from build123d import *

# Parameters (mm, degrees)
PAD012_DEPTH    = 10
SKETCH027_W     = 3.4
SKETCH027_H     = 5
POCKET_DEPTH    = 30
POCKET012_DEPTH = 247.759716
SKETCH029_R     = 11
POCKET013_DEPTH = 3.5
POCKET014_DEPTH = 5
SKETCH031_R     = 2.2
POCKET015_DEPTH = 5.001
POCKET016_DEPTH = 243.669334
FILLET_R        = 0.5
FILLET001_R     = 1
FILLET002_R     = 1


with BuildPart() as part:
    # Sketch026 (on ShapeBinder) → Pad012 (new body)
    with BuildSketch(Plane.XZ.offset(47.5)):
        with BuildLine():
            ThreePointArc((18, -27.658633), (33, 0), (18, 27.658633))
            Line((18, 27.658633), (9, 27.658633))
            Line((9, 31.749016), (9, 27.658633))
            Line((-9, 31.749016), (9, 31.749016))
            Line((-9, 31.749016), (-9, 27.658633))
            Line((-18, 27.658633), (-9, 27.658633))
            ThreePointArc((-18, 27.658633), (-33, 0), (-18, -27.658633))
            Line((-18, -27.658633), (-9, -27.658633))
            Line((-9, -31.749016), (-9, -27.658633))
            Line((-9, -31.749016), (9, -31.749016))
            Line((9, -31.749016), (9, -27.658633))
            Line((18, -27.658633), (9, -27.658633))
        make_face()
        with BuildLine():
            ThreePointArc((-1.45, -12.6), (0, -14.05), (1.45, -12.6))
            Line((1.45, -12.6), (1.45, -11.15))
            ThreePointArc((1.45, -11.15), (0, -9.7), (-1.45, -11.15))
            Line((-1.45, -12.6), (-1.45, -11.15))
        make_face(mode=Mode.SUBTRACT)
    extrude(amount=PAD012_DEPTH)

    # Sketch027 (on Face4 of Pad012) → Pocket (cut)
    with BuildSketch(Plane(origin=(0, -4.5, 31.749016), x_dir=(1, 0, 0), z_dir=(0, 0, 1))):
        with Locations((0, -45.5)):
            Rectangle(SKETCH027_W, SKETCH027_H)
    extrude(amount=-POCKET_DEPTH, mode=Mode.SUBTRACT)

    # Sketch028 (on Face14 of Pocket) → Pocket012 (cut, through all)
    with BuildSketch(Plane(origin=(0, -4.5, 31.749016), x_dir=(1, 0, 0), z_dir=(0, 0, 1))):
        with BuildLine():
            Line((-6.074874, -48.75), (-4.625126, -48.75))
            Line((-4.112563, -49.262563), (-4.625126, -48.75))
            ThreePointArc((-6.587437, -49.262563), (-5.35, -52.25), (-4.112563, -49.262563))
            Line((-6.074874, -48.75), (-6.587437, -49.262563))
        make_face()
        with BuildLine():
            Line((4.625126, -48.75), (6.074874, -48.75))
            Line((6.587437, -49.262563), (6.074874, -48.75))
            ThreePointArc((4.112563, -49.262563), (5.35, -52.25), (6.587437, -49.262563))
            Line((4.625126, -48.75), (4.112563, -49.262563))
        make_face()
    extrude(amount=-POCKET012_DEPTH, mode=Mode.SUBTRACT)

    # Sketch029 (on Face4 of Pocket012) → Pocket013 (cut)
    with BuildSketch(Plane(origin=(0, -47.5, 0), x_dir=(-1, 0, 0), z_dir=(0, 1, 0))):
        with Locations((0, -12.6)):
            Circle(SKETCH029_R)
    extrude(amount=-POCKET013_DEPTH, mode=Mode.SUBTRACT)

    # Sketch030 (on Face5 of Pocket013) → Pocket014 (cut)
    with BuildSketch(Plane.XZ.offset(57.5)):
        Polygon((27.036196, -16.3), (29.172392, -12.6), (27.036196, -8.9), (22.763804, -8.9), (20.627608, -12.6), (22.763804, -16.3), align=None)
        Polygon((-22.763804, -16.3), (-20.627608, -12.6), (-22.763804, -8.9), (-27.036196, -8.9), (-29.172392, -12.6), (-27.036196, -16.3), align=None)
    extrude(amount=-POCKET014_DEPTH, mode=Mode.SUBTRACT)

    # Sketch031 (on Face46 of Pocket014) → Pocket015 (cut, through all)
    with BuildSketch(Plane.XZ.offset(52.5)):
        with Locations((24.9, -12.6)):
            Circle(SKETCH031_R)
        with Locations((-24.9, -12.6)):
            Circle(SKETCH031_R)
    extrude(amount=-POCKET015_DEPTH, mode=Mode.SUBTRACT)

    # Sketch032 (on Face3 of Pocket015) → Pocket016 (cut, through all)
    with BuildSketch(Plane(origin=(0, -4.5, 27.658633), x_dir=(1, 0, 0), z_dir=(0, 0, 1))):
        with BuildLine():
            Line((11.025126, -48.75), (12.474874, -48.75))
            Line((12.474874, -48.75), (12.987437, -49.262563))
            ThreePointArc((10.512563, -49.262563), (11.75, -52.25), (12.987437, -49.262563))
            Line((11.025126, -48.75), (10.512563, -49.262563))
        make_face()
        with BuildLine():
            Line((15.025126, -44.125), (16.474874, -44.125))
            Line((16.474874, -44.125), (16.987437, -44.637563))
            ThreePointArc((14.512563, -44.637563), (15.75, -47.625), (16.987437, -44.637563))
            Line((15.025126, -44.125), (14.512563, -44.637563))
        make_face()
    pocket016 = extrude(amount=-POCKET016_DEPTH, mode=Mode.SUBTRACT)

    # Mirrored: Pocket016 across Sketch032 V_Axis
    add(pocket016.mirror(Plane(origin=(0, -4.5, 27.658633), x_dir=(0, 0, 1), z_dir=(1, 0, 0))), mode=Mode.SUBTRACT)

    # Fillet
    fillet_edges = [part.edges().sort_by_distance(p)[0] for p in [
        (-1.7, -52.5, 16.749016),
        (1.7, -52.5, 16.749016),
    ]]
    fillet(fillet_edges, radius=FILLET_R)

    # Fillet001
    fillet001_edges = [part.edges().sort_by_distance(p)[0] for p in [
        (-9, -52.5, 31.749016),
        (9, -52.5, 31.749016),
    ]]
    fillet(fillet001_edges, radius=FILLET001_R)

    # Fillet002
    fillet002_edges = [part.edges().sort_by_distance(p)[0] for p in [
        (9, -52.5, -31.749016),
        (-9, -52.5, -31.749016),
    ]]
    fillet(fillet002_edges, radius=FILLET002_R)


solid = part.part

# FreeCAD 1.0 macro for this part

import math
import FreeCAD as App
import Part
import Sketcher
Q = App.Units.Quantity


def edges_at(feature, points):
    """Names of the edges that pass closest to the given points."""
    edges = feature.Shape.Edges
    near = lambda p: min(range(len(edges)), key=lambda i: edges[i].distToShape(Part.Vertex(*p))[0])
    return sorted({f"Edge{near(p) + 1}" for p in points})

doc = App.newDocument("Part")
body = doc.addObject("PartDesign::Body", "Body")

# Sketch on XZ plane
sketch1 = body.newObject("Sketcher::SketchObject", "Sketch")
sketch1.AttachmentSupport = (doc.getObject("XZ_Plane"), [""])
sketch1.MapMode = "FlatFace"
sketch1.AttachmentOffset = App.Placement(App.Vector(0, 0, 47.5), App.Rotation())
sketch1.addGeometry(Part.ArcOfCircle(Part.Circle(App.Vector(0.000001, 0, 0), App.Vector(0, 0, 1), 32.999999), math.radians(-56.944269), math.radians(56.944269)), False)
sketch1.addGeometry(Part.LineSegment(App.Vector(18, 27.658633, 0), App.Vector(9, 27.658633, 0)), False)
sketch1.addGeometry(Part.LineSegment(App.Vector(9, 27.658633, 0), App.Vector(9, 31.749016, 0)), False)
sketch1.addGeometry(Part.LineSegment(App.Vector(9, 31.749016, 0), App.Vector(-9, 31.749016, 0)), False)
sketch1.addGeometry(Part.LineSegment(App.Vector(-9, 31.749016, 0), App.Vector(-9, 27.658633, 0)), False)
sketch1.addGeometry(Part.LineSegment(App.Vector(-9, 27.658633, 0), App.Vector(-18, 27.658633, 0)), False)
sketch1.addGeometry(Part.ArcOfCircle(Part.Circle(App.Vector(-0.000001, 0, 0), App.Vector(0, 0, 1), 32.999999), math.radians(123.055731), math.radians(236.944269)), False)
sketch1.addGeometry(Part.LineSegment(App.Vector(-18, -27.658633, 0), App.Vector(-9, -27.658633, 0)), False)
sketch1.addGeometry(Part.LineSegment(App.Vector(-9, -27.658633, 0), App.Vector(-9, -31.749016, 0)), False)
sketch1.addGeometry(Part.LineSegment(App.Vector(-9, -31.749016, 0), App.Vector(9, -31.749016, 0)), False)
sketch1.addGeometry(Part.LineSegment(App.Vector(9, -31.749016, 0), App.Vector(9, -27.658633, 0)), False)
sketch1.addGeometry(Part.LineSegment(App.Vector(9, -27.658633, 0), App.Vector(18, -27.658633, 0)), False)
sketch1.addGeometry(Part.ArcOfCircle(Part.Circle(App.Vector(0, -12.6, 0), App.Vector(0, 0, 1), 1.45), math.radians(180), math.radians(360)), False)
sketch1.addGeometry(Part.LineSegment(App.Vector(-1.45, -12.6, 0), App.Vector(-1.45, -11.15, 0)), False)
sketch1.addGeometry(Part.ArcOfCircle(Part.Circle(App.Vector(0, -11.15, 0), App.Vector(0, 0, 1), 1.45), math.radians(0), math.radians(180)), False)
sketch1.addGeometry(Part.LineSegment(App.Vector(1.45, -11.15, 0), App.Vector(1.45, -12.6, 0)), False)
sketch1.addConstraint(Sketcher.Constraint("Coincident", 0, 2, 1, 1))
sketch1.addConstraint(Sketcher.Constraint("Coincident", 1, 2, 2, 1))
sketch1.addConstraint(Sketcher.Constraint("Coincident", 2, 2, 3, 1))
sketch1.addConstraint(Sketcher.Constraint("Coincident", 3, 2, 4, 1))
sketch1.addConstraint(Sketcher.Constraint("Coincident", 4, 2, 5, 1))
sketch1.addConstraint(Sketcher.Constraint("Coincident", 5, 2, 6, 1))
sketch1.addConstraint(Sketcher.Constraint("Coincident", 6, 2, 7, 1))
sketch1.addConstraint(Sketcher.Constraint("Coincident", 7, 2, 8, 1))
sketch1.addConstraint(Sketcher.Constraint("Coincident", 8, 2, 9, 1))
sketch1.addConstraint(Sketcher.Constraint("Coincident", 9, 2, 10, 1))
sketch1.addConstraint(Sketcher.Constraint("Coincident", 10, 2, 11, 1))
sketch1.addConstraint(Sketcher.Constraint("Coincident", 11, 2, 0, 1))
sketch1.addConstraint(Sketcher.Constraint("Tangent", 12, 1, 13, 1))
sketch1.addConstraint(Sketcher.Constraint("Tangent", 13, 2, 14, 2))
sketch1.addConstraint(Sketcher.Constraint("Tangent", 14, 1, 15, 1))
sketch1.addConstraint(Sketcher.Constraint("Tangent", 15, 2, 12, 2))
sketch1.addConstraint(Sketcher.Constraint("Horizontal", 1))
sketch1.addConstraint(Sketcher.Constraint("Vertical", 2))
sketch1.addConstraint(Sketcher.Constraint("Horizontal", 3))
sketch1.addConstraint(Sketcher.Constraint("Vertical", 4))
sketch1.addConstraint(Sketcher.Constraint("Horizontal", 5))
sketch1.addConstraint(Sketcher.Constraint("Horizontal", 7))
sketch1.addConstraint(Sketcher.Constraint("Vertical", 8))
sketch1.addConstraint(Sketcher.Constraint("Horizontal", 9))
sketch1.addConstraint(Sketcher.Constraint("Vertical", 10))
sketch1.addConstraint(Sketcher.Constraint("Horizontal", 11))
sketch1.addConstraint(Sketcher.Constraint("Vertical", 13))
sketch1.addConstraint(Sketcher.Constraint("Vertical", 15))
sketch1.addConstraint(Sketcher.Constraint("Coincident", 0, 3, -1, 1))
sketch1.addConstraint(Sketcher.Constraint("Coincident", 6, 3, -1, 1))
sketch1.addConstraint(Sketcher.Constraint("Equal", 0, 6))
sketch1.addConstraint(Sketcher.Constraint("Symmetric", 1, 2, 7, 2, -1, 1))
sketch1.addConstraint(Sketcher.Constraint("Symmetric", 3, 2, 9, 2, -1, 1))
sketch1.addConstraint(Sketcher.Constraint("Symmetric", 1, 2, 4, 2, -2))
sketch1.addConstraint(Sketcher.Constraint("PointOnObject", 12, 3, -2))
sketch1.addConstraint(Sketcher.Constraint("Horizontal", 7, 2, 10, 2))
sketch1.addConstraint(Sketcher.Constraint("Radius", 0, Q("32.999999 mm")))
sketch1.addConstraint(Sketcher.Constraint("DistanceX", 1, 2, 1, 1, Q("9 mm")))
sketch1.addConstraint(Sketcher.Constraint("DistanceX", 3, 2, 3, 1, Q("18 mm")))
sketch1.addConstraint(Sketcher.Constraint("Radius", 12, Q("1.45 mm")))
sketch1.addConstraint(Sketcher.Constraint("DistanceY", 13, 1, 13, 2, Q("1.45 mm")))
sketch1.addConstraint(Sketcher.Constraint("DistanceY", 12, 3, -1, 1, Q("12.6 mm")))
sketch1.addConstraint(Sketcher.Constraint("DistanceY", 2, 1, 2, 2, Q("4.090383 mm")))
pad1 = body.newObject("PartDesign::Pad", "Pad")
pad1.Profile = sketch1
pad1.Length = 10

# Sketch on XY plane
sketch2 = body.newObject("Sketcher::SketchObject", "Sketch001")
sketch2.AttachmentSupport = (doc.getObject("XY_Plane"), [""])
sketch2.MapMode = "FlatFace"
sketch2.AttachmentOffset = App.Placement(App.Vector(0, 0, 31.749016), App.Rotation())
sketch2.addGeometry(Part.LineSegment(App.Vector(-1.7, -47.5, 0), App.Vector(-1.7, -52.5, 0)), False)
sketch2.addGeometry(Part.LineSegment(App.Vector(-1.7, -52.5, 0), App.Vector(1.7, -52.5, 0)), False)
sketch2.addGeometry(Part.LineSegment(App.Vector(1.7, -52.5, 0), App.Vector(1.7, -47.5, 0)), False)
sketch2.addGeometry(Part.LineSegment(App.Vector(1.7, -47.5, 0), App.Vector(-1.7, -47.5, 0)), False)
sketch2.addConstraint(Sketcher.Constraint("Coincident", 0, 2, 1, 1))
sketch2.addConstraint(Sketcher.Constraint("Coincident", 1, 2, 2, 1))
sketch2.addConstraint(Sketcher.Constraint("Coincident", 2, 2, 3, 1))
sketch2.addConstraint(Sketcher.Constraint("Coincident", 3, 2, 0, 1))
sketch2.addConstraint(Sketcher.Constraint("Vertical", 0))
sketch2.addConstraint(Sketcher.Constraint("Horizontal", 1))
sketch2.addConstraint(Sketcher.Constraint("Vertical", 2))
sketch2.addConstraint(Sketcher.Constraint("Horizontal", 3))
sketch2.addConstraint(Sketcher.Constraint("DistanceY", 0, 2, 0, 1, Q("5 mm")))
sketch2.addConstraint(Sketcher.Constraint("DistanceX", 1, 1, 1, 2, Q("3.4 mm")))
sketch2.addConstraint(Sketcher.Constraint("DistanceX", 0, 2, -1, 1, Q("1.7 mm")))
sketch2.addConstraint(Sketcher.Constraint("DistanceY", 0, 2, -1, 1, Q("52.5 mm")))
pocket1 = body.newObject("PartDesign::Pocket", "Pocket")
pocket1.Profile = sketch2
pocket1.Length = 30

# Sketch on XY plane
sketch3 = body.newObject("Sketcher::SketchObject", "Sketch002")
sketch3.AttachmentSupport = (doc.getObject("XY_Plane"), [""])
sketch3.MapMode = "FlatFace"
sketch3.AttachmentOffset = App.Placement(App.Vector(0, 0, 31.749016), App.Rotation())
sketch3.addGeometry(Part.LineSegment(App.Vector(-4.625126, -53.25, 0), App.Vector(-6.074874, -53.25, 0)), False)
sketch3.addGeometry(Part.LineSegment(App.Vector(-6.074874, -53.25, 0), App.Vector(-6.587437, -53.762563, 0)), False)
sketch3.addGeometry(Part.ArcOfCircle(Part.Circle(App.Vector(-5.35, -55, 0), App.Vector(0, 0, 1), 1.75), math.radians(135.000003), math.radians(404.999997)), False)
sketch3.addGeometry(Part.LineSegment(App.Vector(-4.112563, -53.762563, 0), App.Vector(-4.625126, -53.25, 0)), False)
sketch3.addGeometry(Part.LineSegment(App.Vector(6.074874, -53.25, 0), App.Vector(4.625126, -53.25, 0)), False)
sketch3.addGeometry(Part.LineSegment(App.Vector(4.625126, -53.25, 0), App.Vector(4.112563, -53.762563, 0)), False)
sketch3.addGeometry(Part.ArcOfCircle(Part.Circle(App.Vector(5.35, -55, 0), App.Vector(0, 0, 1), 1.75), math.radians(135.000003), math.radians(404.999997)), False)
sketch3.addGeometry(Part.LineSegment(App.Vector(6.587437, -53.762563, 0), App.Vector(6.074874, -53.25, 0)), False)
sketch3.addConstraint(Sketcher.Constraint("Coincident", 0, 2, 1, 1))
sketch3.addConstraint(Sketcher.Constraint("Tangent", 1, 2, 2, 1))
sketch3.addConstraint(Sketcher.Constraint("Tangent", 2, 2, 3, 1))
sketch3.addConstraint(Sketcher.Constraint("Coincident", 3, 2, 0, 1))
sketch3.addConstraint(Sketcher.Constraint("Coincident", 4, 2, 5, 1))
sketch3.addConstraint(Sketcher.Constraint("Tangent", 5, 2, 6, 1))
sketch3.addConstraint(Sketcher.Constraint("Tangent", 6, 2, 7, 1))
sketch3.addConstraint(Sketcher.Constraint("Coincident", 7, 2, 4, 1))
sketch3.addConstraint(Sketcher.Constraint("Horizontal", 0))
sketch3.addConstraint(Sketcher.Constraint("Horizontal", 4))
sketch3.addConstraint(Sketcher.Constraint("Equal", 2, 6))
sketch3.addConstraint(Sketcher.Constraint("Symmetric", 2, 3, 6, 3, -2))
sketch3.addConstraint(Sketcher.Constraint("Symmetric", 3, 2, 4, 2, -2))
sketch3.addConstraint(Sketcher.Constraint("Perpendicular", 1, 3))
sketch3.addConstraint(Sketcher.Constraint("Perpendicular", 3, 5))
sketch3.addConstraint(Sketcher.Constraint("Perpendicular", 5, 7))
sketch3.addConstraint(Sketcher.Constraint("Radius", 2, Q("1.75 mm")))
sketch3.addConstraint(Sketcher.Constraint("DistanceY", 2, 3, -1, 1, Q("55 mm")))
sketch3.addConstraint(Sketcher.Constraint("DistanceX", 2, 3, 6, 3, Q("10.7 mm")))
sketch3.addConstraint(Sketcher.Constraint("DistanceY", 0, 2, -1, 1, Q("53.25 mm")))
pocket2 = body.newObject("PartDesign::Pocket", "Pocket001")
pocket2.Profile = sketch3
pocket2.Type = "ThroughAll"

# Sketch on XZ plane
sketch4 = body.newObject("Sketcher::SketchObject", "Sketch003")
sketch4.AttachmentSupport = (doc.getObject("XZ_Plane"), [""])
sketch4.MapMode = "FlatFace"
sketch4.AttachmentOffset = App.Placement(App.Vector(0, 0, 47.5), App.Rotation())
sketch4.addGeometry(Part.Circle(App.Vector(0, -12.6, 0), App.Vector(0, 0, 1), 11), False)
sketch4.addConstraint(Sketcher.Constraint("PointOnObject", 0, 3, -2))
sketch4.addConstraint(Sketcher.Constraint("Diameter", 0, Q("22 mm")))
sketch4.addConstraint(Sketcher.Constraint("DistanceY", 0, 3, -1, 1, Q("12.6 mm")))
pocket3 = body.newObject("PartDesign::Pocket", "Pocket002")
pocket3.Profile = sketch4
pocket3.Length = 3.5
pocket3.Reversed = True

# Sketch on XZ plane
sketch5 = body.newObject("Sketcher::SketchObject", "Sketch004")
sketch5.AttachmentSupport = (doc.getObject("XZ_Plane"), [""])
sketch5.MapMode = "FlatFace"
sketch5.AttachmentOffset = App.Placement(App.Vector(0, 0, 57.5), App.Rotation())
sketch5.addGeometry(Part.LineSegment(App.Vector(27.036196, -16.3, 0), App.Vector(29.172392, -12.6, 0)), False)
sketch5.addGeometry(Part.LineSegment(App.Vector(29.172392, -12.6, 0), App.Vector(27.036196, -8.9, 0)), False)
sketch5.addGeometry(Part.LineSegment(App.Vector(27.036196, -8.9, 0), App.Vector(22.763804, -8.9, 0)), False)
sketch5.addGeometry(Part.LineSegment(App.Vector(22.763804, -8.9, 0), App.Vector(20.627608, -12.6, 0)), False)
sketch5.addGeometry(Part.LineSegment(App.Vector(20.627608, -12.6, 0), App.Vector(22.763804, -16.3, 0)), False)
sketch5.addGeometry(Part.LineSegment(App.Vector(22.763804, -16.3, 0), App.Vector(27.036196, -16.3, 0)), False)
sketch5.addGeometry(Part.LineSegment(App.Vector(-22.763804, -16.3, 0), App.Vector(-20.627608, -12.6, 0)), False)
sketch5.addGeometry(Part.LineSegment(App.Vector(-20.627608, -12.6, 0), App.Vector(-22.763804, -8.9, 0)), False)
sketch5.addGeometry(Part.LineSegment(App.Vector(-22.763804, -8.9, 0), App.Vector(-27.036196, -8.9, 0)), False)
sketch5.addGeometry(Part.LineSegment(App.Vector(-27.036196, -8.9, 0), App.Vector(-29.172392, -12.6, 0)), False)
sketch5.addGeometry(Part.LineSegment(App.Vector(-29.172392, -12.6, 0), App.Vector(-27.036196, -16.3, 0)), False)
sketch5.addGeometry(Part.LineSegment(App.Vector(-27.036196, -16.3, 0), App.Vector(-22.763804, -16.3, 0)), False)
sketch5.addConstraint(Sketcher.Constraint("Coincident", 0, 2, 1, 1))
sketch5.addConstraint(Sketcher.Constraint("Coincident", 1, 2, 2, 1))
sketch5.addConstraint(Sketcher.Constraint("Coincident", 2, 2, 3, 1))
sketch5.addConstraint(Sketcher.Constraint("Coincident", 3, 2, 4, 1))
sketch5.addConstraint(Sketcher.Constraint("Coincident", 4, 2, 5, 1))
sketch5.addConstraint(Sketcher.Constraint("Coincident", 5, 2, 0, 1))
sketch5.addConstraint(Sketcher.Constraint("Coincident", 6, 2, 7, 1))
sketch5.addConstraint(Sketcher.Constraint("Coincident", 7, 2, 8, 1))
sketch5.addConstraint(Sketcher.Constraint("Coincident", 8, 2, 9, 1))
sketch5.addConstraint(Sketcher.Constraint("Coincident", 9, 2, 10, 1))
sketch5.addConstraint(Sketcher.Constraint("Coincident", 10, 2, 11, 1))
sketch5.addConstraint(Sketcher.Constraint("Coincident", 11, 2, 6, 1))
sketch5.addConstraint(Sketcher.Constraint("Horizontal", 2))
sketch5.addConstraint(Sketcher.Constraint("Horizontal", 5))
sketch5.addConstraint(Sketcher.Constraint("Horizontal", 8))
sketch5.addConstraint(Sketcher.Constraint("Horizontal", 11))
sketch5.addConstraint(Sketcher.Constraint("Symmetric", 3, 2, 6, 2, -2))
sketch5.addConstraint(Sketcher.Constraint("Symmetric", 2, 2, 7, 2, -2))
sketch5.addConstraint(Sketcher.Constraint("Symmetric", 0, 2, 9, 2, -2))
sketch5.addConstraint(Sketcher.Constraint("Symmetric", 5, 2, 10, 2, -2))
sketch5.addConstraint(Sketcher.Constraint("Parallel", 0, 3))
sketch5.addConstraint(Sketcher.Constraint("Parallel", 1, 4))
sketch5.addConstraint(Sketcher.Constraint("Parallel", 3, 6))
sketch5.addConstraint(Sketcher.Constraint("Parallel", 4, 7))
sketch5.addConstraint(Sketcher.Constraint("Parallel", 6, 9))
sketch5.addConstraint(Sketcher.Constraint("Horizontal", 0, 2, 3, 2))
sketch5.addConstraint(Sketcher.Constraint("Vertical", 2, 2, 4, 2))
sketch5.addConstraint(Sketcher.Constraint("Angle", 0, Q("60 deg")))
sketch5.addConstraint(Sketcher.Constraint("DistanceY", 0, 2, -1, 1, Q("12.6 mm")))
sketch5.addConstraint(Sketcher.Constraint("DistanceY", 1, 2, -1, 1, Q("8.9 mm")))
sketch5.addConstraint(Sketcher.Constraint("DistanceX", 7, 2, 1, 2, Q("49.8 mm")))
sketch5.addConstraint(Sketcher.Constraint("DistanceX", 2, 2, 2, 1, Q("4.272392 mm")))
pocket4 = body.newObject("PartDesign::Pocket", "Pocket003")
pocket4.Profile = sketch5
pocket4.Length = 5

# Sketch on XZ plane
sketch6 = body.newObject("Sketcher::SketchObject", "Sketch005")
sketch6.AttachmentSupport = (doc.getObject("XZ_Plane"), [""])
sketch6.MapMode = "FlatFace"
sketch6.AttachmentOffset = App.Placement(App.Vector(0, 0, 52.5), App.Rotation())
sketch6.addGeometry(Part.Circle(App.Vector(24.9, -12.6, 0), App.Vector(0, 0, 1), 2.2), False)
sketch6.addGeometry(Part.Circle(App.Vector(-24.9, -12.6, 0), App.Vector(0, 0, 1), 2.2), False)
sketch6.addConstraint(Sketcher.Constraint("Equal", 0, 1))
sketch6.addConstraint(Sketcher.Constraint("Symmetric", 0, 3, 1, 3, -2))
sketch6.addConstraint(Sketcher.Constraint("Diameter", 0, Q("4.4 mm")))
sketch6.addConstraint(Sketcher.Constraint("DistanceX", -1, 1, 0, 3, Q("24.9 mm")))
sketch6.addConstraint(Sketcher.Constraint("DistanceY", 0, 3, -1, 1, Q("12.6 mm")))
pocket5 = body.newObject("PartDesign::Pocket", "Pocket004")
pocket5.Profile = sketch6
pocket5.Type = "ThroughAll"

# Sketch on XY plane
sketch7 = body.newObject("Sketcher::SketchObject", "Sketch006")
sketch7.AttachmentSupport = (doc.getObject("XY_Plane"), [""])
sketch7.MapMode = "FlatFace"
sketch7.AttachmentOffset = App.Placement(App.Vector(0, 0, 27.658633), App.Rotation())
sketch7.addGeometry(Part.LineSegment(App.Vector(12.474874, -53.25, 0), App.Vector(11.025126, -53.25, 0)), False)
sketch7.addGeometry(Part.LineSegment(App.Vector(11.025126, -53.25, 0), App.Vector(10.512563, -53.762563, 0)), False)
sketch7.addGeometry(Part.ArcOfCircle(Part.Circle(App.Vector(11.75, -55, 0), App.Vector(0, 0, 1), 1.75), math.radians(135.000003), math.radians(404.999997)), False)
sketch7.addGeometry(Part.LineSegment(App.Vector(12.987437, -53.762563, 0), App.Vector(12.474874, -53.25, 0)), False)
sketch7.addGeometry(Part.LineSegment(App.Vector(16.474874, -48.625, 0), App.Vector(15.025126, -48.625, 0)), False)
sketch7.addGeometry(Part.LineSegment(App.Vector(15.025126, -48.625, 0), App.Vector(14.512563, -49.137563, 0)), False)
sketch7.addGeometry(Part.ArcOfCircle(Part.Circle(App.Vector(15.75, -50.375, 0), App.Vector(0, 0, 1), 1.75), math.radians(135.000003), math.radians(404.999997)), False)
sketch7.addGeometry(Part.LineSegment(App.Vector(16.987437, -49.137563, 0), App.Vector(16.474874, -48.625, 0)), False)
sketch7.addConstraint(Sketcher.Constraint("Coincident", 0, 2, 1, 1))
sketch7.addConstraint(Sketcher.Constraint("Tangent", 1, 2, 2, 1))
sketch7.addConstraint(Sketcher.Constraint("Tangent", 2, 2, 3, 1))
sketch7.addConstraint(Sketcher.Constraint("Coincident", 3, 2, 0, 1))
sketch7.addConstraint(Sketcher.Constraint("Coincident", 4, 2, 5, 1))
sketch7.addConstraint(Sketcher.Constraint("Tangent", 5, 2, 6, 1))
sketch7.addConstraint(Sketcher.Constraint("Tangent", 6, 2, 7, 1))
sketch7.addConstraint(Sketcher.Constraint("Coincident", 7, 2, 4, 1))
sketch7.addConstraint(Sketcher.Constraint("Horizontal", 0))
sketch7.addConstraint(Sketcher.Constraint("Horizontal", 4))
sketch7.addConstraint(Sketcher.Constraint("Equal", 2, 6))
sketch7.addConstraint(Sketcher.Constraint("Perpendicular", 1, 3))
sketch7.addConstraint(Sketcher.Constraint("Perpendicular", 3, 5))
sketch7.addConstraint(Sketcher.Constraint("Perpendicular", 5, 7))
sketch7.addConstraint(Sketcher.Constraint("Horizontal", 1, 2, 2, 2))
sketch7.addConstraint(Sketcher.Constraint("Equal", 0, 4))
sketch7.addConstraint(Sketcher.Constraint("Radius", 2, Q("1.75 mm")))
sketch7.addConstraint(Sketcher.Constraint("DistanceY", 2, 3, -1, 1, Q("55 mm")))
sketch7.addConstraint(Sketcher.Constraint("DistanceX", 2, 3, 6, 3, Q("4 mm")))
sketch7.addConstraint(Sketcher.Constraint("DistanceX", -1, 1, 2, 3, Q("11.75 mm")))
sketch7.addConstraint(Sketcher.Constraint("DistanceY", 0, 2, -1, 1, Q("53.25 mm")))
sketch7.addConstraint(Sketcher.Constraint("DistanceY", 6, 3, -1, 1, Q("50.375 mm")))
pocket6 = body.newObject("PartDesign::Pocket", "Pocket005")
pocket6.Profile = sketch7
pocket6.Type = "ThroughAll"
doc.recompute()

mirrored = body.newObject("PartDesign::Mirrored", "Mirrored")
mirrored.Originals = [pocket6]
mirrored.MirrorPlane = (doc.getObject("YZ_Plane"), [""])
body.Tip = mirrored
doc.recompute()

fillet = body.newObject("PartDesign::Fillet", "Fillet")
fillet.Base = (mirrored, edges_at(mirrored, [(-1.7, -52.5, 16.749), (1.7, -52.5, 16.749)]))
fillet.Radius = 0.5
doc.recompute()

fillet2 = body.newObject("PartDesign::Fillet", "Fillet001")
fillet2.Base = (fillet, edges_at(fillet, [(-9, -52.5, 31.749), (9, -52.5, 31.749)]))
fillet2.Radius = 1
doc.recompute()

fillet3 = body.newObject("PartDesign::Fillet", "Fillet002")
fillet3.Base = (fillet2, edges_at(fillet2, [(9, -52.5, -31.749), (-9, -52.5, -31.749)]))
fillet3.Radius = 1

doc.recompute()
